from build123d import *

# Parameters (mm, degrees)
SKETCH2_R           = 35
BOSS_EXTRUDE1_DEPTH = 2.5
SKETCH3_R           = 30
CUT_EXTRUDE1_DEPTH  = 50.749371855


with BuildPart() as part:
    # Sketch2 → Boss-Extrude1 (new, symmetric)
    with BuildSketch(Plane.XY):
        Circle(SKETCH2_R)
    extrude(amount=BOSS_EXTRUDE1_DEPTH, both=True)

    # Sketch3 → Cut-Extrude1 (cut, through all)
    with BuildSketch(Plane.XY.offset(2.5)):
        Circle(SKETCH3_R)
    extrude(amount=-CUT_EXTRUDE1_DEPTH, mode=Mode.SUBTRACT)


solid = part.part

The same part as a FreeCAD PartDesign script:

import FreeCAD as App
import Part
import Sketcher
Q = App.Units.Quantity

doc = App.newDocument("Part")
body = doc.addObject("PartDesign::Body", "Body")

# Sketch on XY plane
sketch1 = doc.addObject("Sketcher::SketchObject", "Sketch")
body.addObject(sketch1)
sketch1.AttachmentSupport = (doc.XY_Plane, [""])
sketch1.MapMode = "FlatFace"
sketch1.addGeometry(Part.Circle(App.Vector(0, 0, 0), App.Vector(0, 0, 1), 35), False)
sketch1.addConstraint([
    Sketcher.Constraint("Coincident", 0, 3, -1, 1),
    Sketcher.Constraint("Diameter", 0, Q("70 mm")),
])
pad1 = doc.addObject("PartDesign::Pad", "Pad")
body.addObject(pad1)
pad1.Profile = sketch1
pad1.Length = 5
pad1.Midplane = True

# Sketch on XY plane
sketch2 = doc.addObject("Sketcher::SketchObject", "Sketch001")
body.addObject(sketch2)
sketch2.AttachmentSupport = (doc.XY_Plane, [""])
sketch2.MapMode = "FlatFace"
sketch2.AttachmentOffset = App.Placement(App.Vector(0, 0, 2.5), App.Rotation())
sketch2.addGeometry(Part.Circle(App.Vector(0, 0, 0), App.Vector(0, 0, 1), 30), False)
sketch2.addConstraint([
    Sketcher.Constraint("Coincident", 0, 3, -1, 1),
    Sketcher.Constraint("Diameter", 0, Q("60 mm")),
])
pocket1 = doc.addObject("PartDesign::Pocket", "Pocket")
body.addObject(pocket1)
pocket1.Profile = sketch2
pocket1.Type = "ThroughAll"

doc.recompute()
